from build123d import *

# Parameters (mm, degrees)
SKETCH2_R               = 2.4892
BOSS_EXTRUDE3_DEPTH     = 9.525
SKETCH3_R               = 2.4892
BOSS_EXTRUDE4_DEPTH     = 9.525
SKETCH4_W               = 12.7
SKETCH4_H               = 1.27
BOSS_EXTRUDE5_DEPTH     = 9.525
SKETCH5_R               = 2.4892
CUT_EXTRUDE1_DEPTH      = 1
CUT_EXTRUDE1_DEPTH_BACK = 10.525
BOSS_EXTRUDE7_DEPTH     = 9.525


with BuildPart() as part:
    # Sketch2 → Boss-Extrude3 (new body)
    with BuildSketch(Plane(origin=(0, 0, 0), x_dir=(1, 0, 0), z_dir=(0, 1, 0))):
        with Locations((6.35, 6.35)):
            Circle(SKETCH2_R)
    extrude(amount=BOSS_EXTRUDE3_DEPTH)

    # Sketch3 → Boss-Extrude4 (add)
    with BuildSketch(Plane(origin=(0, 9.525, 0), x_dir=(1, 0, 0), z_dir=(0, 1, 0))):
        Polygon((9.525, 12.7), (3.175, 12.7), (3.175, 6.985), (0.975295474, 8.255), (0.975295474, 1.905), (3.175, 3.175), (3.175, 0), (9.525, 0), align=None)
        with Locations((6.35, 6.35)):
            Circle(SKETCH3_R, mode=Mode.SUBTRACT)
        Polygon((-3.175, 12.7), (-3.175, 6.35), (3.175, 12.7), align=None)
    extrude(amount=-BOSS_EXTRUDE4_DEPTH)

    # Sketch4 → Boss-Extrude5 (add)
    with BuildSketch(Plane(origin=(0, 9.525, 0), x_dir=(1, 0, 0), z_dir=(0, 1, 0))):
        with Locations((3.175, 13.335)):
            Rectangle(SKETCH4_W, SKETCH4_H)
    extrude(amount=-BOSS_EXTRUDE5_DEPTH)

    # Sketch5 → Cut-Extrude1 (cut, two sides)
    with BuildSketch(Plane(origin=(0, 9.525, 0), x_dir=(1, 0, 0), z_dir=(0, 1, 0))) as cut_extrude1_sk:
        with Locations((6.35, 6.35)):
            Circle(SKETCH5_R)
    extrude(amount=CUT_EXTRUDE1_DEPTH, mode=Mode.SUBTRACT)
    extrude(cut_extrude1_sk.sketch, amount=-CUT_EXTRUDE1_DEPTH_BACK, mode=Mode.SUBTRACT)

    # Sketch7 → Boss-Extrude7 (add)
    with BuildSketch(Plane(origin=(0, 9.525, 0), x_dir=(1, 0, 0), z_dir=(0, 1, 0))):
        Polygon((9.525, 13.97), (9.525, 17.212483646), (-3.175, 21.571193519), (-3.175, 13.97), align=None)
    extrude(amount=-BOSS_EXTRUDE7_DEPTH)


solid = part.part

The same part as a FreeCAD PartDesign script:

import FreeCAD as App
import Part
import Sketcher
Q = App.Units.Quantity

doc = App.newDocument("Part")
body = doc.addObject("PartDesign::Body", "Body")
body.AllowCompound = True

# Sketch on XZ plane
sketch1 = body.newObject("Sketcher::SketchObject", "Sketch")
sketch1.AttachmentSupport = (doc.getObject("XZ_Plane"), [""])
sketch1.MapMode = "FlatFace"
sketch1.addGeometry(Part.Circle(App.Vector(6.3, -6.3, 0), App.Vector(0, 0, 1), 2.5), False)
sketch1.addConstraint([
    Sketcher.Constraint("Diameter", 0, Q("0.196 in")),
    Sketcher.Constraint("DistanceX", -1, 1, 0, 3, Q("0.25 in")),
    Sketcher.Constraint("DistanceY", 0, 3, -1, 1, Q("0.25 in")),
])
pad1 = body.newObject("PartDesign::Pad", "Pad")
pad1.Profile = sketch1
pad1.Length = Q("0.375 in")
pad1.Reversed = True

# Sketch on XZ plane
sketch2 = body.newObject("Sketcher::SketchObject", "Sketch001")
sketch2.AttachmentSupport = (doc.getObject("XZ_Plane"), [""])
sketch2.MapMode = "FlatFace"
sketch2.AttachmentOffset = App.Placement(App.Vector(0, 0, -0.375 * 25.4), App.Rotation())
sketch2.addGeometry([
    Part.LineSegment(App.Vector(9.5, -12.7, 0), App.Vector(3.2, -12.7, 0)),  # 0
    Part.LineSegment(App.Vector(3.2, -12.7, 0), App.Vector(3.2, -7, 0)),  # 1
    Part.LineSegment(App.Vector(3.2, -7, 0), App.Vector(1, -8.3, 0)),  # 2
    Part.LineSegment(App.Vector(1, -8.3, 0), App.Vector(1, -1.9, 0)),  # 3
    Part.LineSegment(App.Vector(1, -1.9, 0), App.Vector(3.2, -3.2, 0)),  # 4
    Part.LineSegment(App.Vector(3.2, -3.2, 0), App.Vector(3.2, 0, 0)),  # 5
    Part.LineSegment(App.Vector(3.2, 0, 0), App.Vector(9.5, 0, 0)),  # 6
    Part.LineSegment(App.Vector(9.5, 0, 0), App.Vector(9.5, -12.7, 0)),  # 7
    Part.Circle(App.Vector(6.3, -6.3, 0), App.Vector(0, 0, 1), 2.5),  # 8
    Part.LineSegment(App.Vector(-3.2, -12.7, 0), App.Vector(-3.2, -6.3, 0)),  # 9
    Part.LineSegment(App.Vector(-3.2, -6.3, 0), App.Vector(3.2, -12.7, 0)),  # 10
    Part.LineSegment(App.Vector(3.2, -12.7, 0), App.Vector(-3.2, -12.7, 0)),  # 11
], False)
sketch2.addConstraint([
    Sketcher.Constraint("Coincident", 0, 2, 1, 1),
    Sketcher.Constraint("Coincident", 1, 2, 2, 1),
    Sketcher.Constraint("Coincident", 2, 2, 3, 1),
    Sketcher.Constraint("Coincident", 3, 2, 4, 1),
    Sketcher.Constraint("Coincident", 4, 2, 5, 1),
    Sketcher.Constraint("Coincident", 5, 2, 6, 1),
    Sketcher.Constraint("Coincident", 6, 2, 7, 1),
    Sketcher.Constraint("Coincident", 7, 2, 0, 1),
    Sketcher.Constraint("Coincident", 9, 2, 10, 1),
    Sketcher.Constraint("Coincident", 10, 2, 11, 1),
    Sketcher.Constraint("Coincident", 11, 2, 9, 1),
    Sketcher.Constraint("Horizontal", 0),
    Sketcher.Constraint("Vertical", 1),
    Sketcher.Constraint("Vertical", 3),
    Sketcher.Constraint("Vertical", 5),
    Sketcher.Constraint("Horizontal", 6),
    Sketcher.Constraint("Vertical", 7),
    Sketcher.Constraint("Vertical", 9),
    Sketcher.Constraint("Horizontal", 11),
    Sketcher.Constraint("Coincident", 10, 2, 0, 2),
    Sketcher.Constraint("PointOnObject", 5, 2, -1),
    Sketcher.Constraint("Horizontal", 8, 3, 9, 2),
    Sketcher.Constraint("Vertical", 1, 2, 4, 2),
    Sketcher.Constraint("Equal", 6, 11),
    Sketcher.Constraint("Equal", 11, 3),
    Sketcher.Constraint("Equal", 3, 9),
    Sketcher.Constraint("Equal", 2, 4),
    Sketcher.Constraint("Diameter", 8, Q("0.196 in")),
    Sketcher.Constraint("DistanceY", 7, 2, 7, 1, Q("0.5 in")),
    Sketcher.Constraint("Angle", 2, Q("-150 deg")),
    Sketcher.Constraint("Distance", 2, Q("0.1 in")),
    Sketcher.Constraint("DistanceX", 0, 2, 0, 1, Q("0.25 in")),
    Sketcher.Constraint("DistanceY", 1, 1, 1, 2, Q("0.225 in")),
    Sketcher.Constraint("DistanceX", -1, 1, 8, 3, Q("0.25 in")),
    Sketcher.Constraint("DistanceX", -1, 1, 0, 2, Q("0.125 in")),
])
pad2 = body.newObject("PartDesign::Pad", "Pad001")
pad2.Profile = sketch2
pad2.Length = Q("0.375 in")

# Sketch on XZ plane
sketch3 = body.newObject("Sketcher::SketchObject", "Sketch002")
sketch3.AttachmentSupport = (doc.getObject("XZ_Plane"), [""])
sketch3.MapMode = "FlatFace"
sketch3.AttachmentOffset = App.Placement(App.Vector(0, 0, -0.375 * 25.4), App.Rotation())
sketch3.addGeometry([
    Part.LineSegment(App.Vector(-3.2, -14, 0), App.Vector(-3.2, -12.7, 0)),
    Part.LineSegment(App.Vector(-3.2, -12.7, 0), App.Vector(9.5, -12.7, 0)),
    Part.LineSegment(App.Vector(9.5, -12.7, 0), App.Vector(9.5, -14, 0)),
    Part.LineSegment(App.Vector(9.5, -14, 0), App.Vector(-3.2, -14, 0)),
], False)
sketch3.addConstraint([
    Sketcher.Constraint("Coincident", 0, 2, 1, 1),
    Sketcher.Constraint("Coincident", 1, 2, 2, 1),
    Sketcher.Constraint("Coincident", 2, 2, 3, 1),
    Sketcher.Constraint("Coincident", 3, 2, 0, 1),
    Sketcher.Constraint("Vertical", 0),
    Sketcher.Constraint("Horizontal", 1),
    Sketcher.Constraint("Vertical", 2),
    Sketcher.Constraint("Horizontal", 3),
    Sketcher.Constraint("DistanceX", 1, 1, 1, 2, Q("0.5 in")),
    Sketcher.Constraint("DistanceY", 0, 1, 0, 2, Q("0.05 in")),
    Sketcher.Constraint("DistanceY", 0, 2, -1, 1, Q("0.5 in")),
    Sketcher.Constraint("DistanceX", 0, 2, -1, 1, Q("0.125 in")),
])
pad3 = body.newObject("PartDesign::Pad", "Pad002")
pad3.Profile = sketch3
pad3.Length = Q("0.375 in")

# Sketch on XZ plane
sketch4 = body.newObject("Sketcher::SketchObject", "Sketch003")
sketch4.AttachmentSupport = (doc.getObject("XZ_Plane"), [""])
sketch4.MapMode = "FlatFace"
sketch4.AttachmentOffset = App.Placement(App.Vector(0, 0, -0.375 * 25.4), App.Rotation())
sketch4.addGeometry(Part.Circle(App.Vector(6.3, -6.3, 0), App.Vector(0, 0, 1), 2.5), False)
sketch4.addConstraint([
    Sketcher.Constraint("Diameter", 0, Q("0.196 in")),
    Sketcher.Constraint("DistanceX", -1, 1, 0, 3, Q("0.25 in")),
    Sketcher.Constraint("DistanceY", 0, 3, -1, 1, Q("0.25 in")),
])
pocket1 = body.newObject("PartDesign::Pocket", "Pocket")
pocket1.Profile = sketch4
pocket1.Type = "ThroughAll"
pocket1.Midplane = True

# Sketch on XZ plane
sketch5 = body.newObject("Sketcher::SketchObject", "Sketch004")
sketch5.AttachmentSupport = (doc.getObject("XZ_Plane"), [""])
sketch5.MapMode = "FlatFace"
sketch5.AttachmentOffset = App.Placement(App.Vector(0, 0, -0.375 * 25.4), App.Rotation())
sketch5.addGeometry([
    Part.LineSegment(App.Vector(9.5, -14, 0), App.Vector(9.5, -17.2, 0)),
    Part.LineSegment(App.Vector(9.5, -17.2, 0), App.Vector(-3.2, -21.6, 0)),
    Part.LineSegment(App.Vector(-3.2, -21.6, 0), App.Vector(-3.2, -14, 0)),
    Part.LineSegment(App.Vector(-3.2, -14, 0), App.Vector(9.5, -14, 0)),
], False)
sketch5.addConstraint([
    Sketcher.Constraint("Coincident", 0, 2, 1, 1),
    Sketcher.Constraint("Coincident", 1, 2, 2, 1),
    Sketcher.Constraint("Coincident", 2, 2, 3, 1),
    Sketcher.Constraint("Coincident", 3, 2, 0, 1),
    Sketcher.Constraint("Vertical", 0),
    Sketcher.Constraint("Vertical", 2),
    Sketcher.Constraint("Horizontal", 3),
    Sketcher.Constraint("DistanceX", 3, 1, 3, 2, Q("0.5 in")),
    Sketcher.Constraint("DistanceY", 2, 2, -1, 1, Q("0.55 in")),
    Sketcher.Constraint("DistanceX", -1, 1, 0, 2, Q("0.375 in")),
    Sketcher.Constraint("Distance", 1, Q("13.42715 mm")),
    Sketcher.Constraint("DistanceY", 0, 2, 0, 1, Q("3.242484 mm")),
])
pad4 = body.newObject("PartDesign::Pad", "Pad003")
pad4.Profile = sketch5
pad4.Length = Q("0.375 in")

doc.recompute()
